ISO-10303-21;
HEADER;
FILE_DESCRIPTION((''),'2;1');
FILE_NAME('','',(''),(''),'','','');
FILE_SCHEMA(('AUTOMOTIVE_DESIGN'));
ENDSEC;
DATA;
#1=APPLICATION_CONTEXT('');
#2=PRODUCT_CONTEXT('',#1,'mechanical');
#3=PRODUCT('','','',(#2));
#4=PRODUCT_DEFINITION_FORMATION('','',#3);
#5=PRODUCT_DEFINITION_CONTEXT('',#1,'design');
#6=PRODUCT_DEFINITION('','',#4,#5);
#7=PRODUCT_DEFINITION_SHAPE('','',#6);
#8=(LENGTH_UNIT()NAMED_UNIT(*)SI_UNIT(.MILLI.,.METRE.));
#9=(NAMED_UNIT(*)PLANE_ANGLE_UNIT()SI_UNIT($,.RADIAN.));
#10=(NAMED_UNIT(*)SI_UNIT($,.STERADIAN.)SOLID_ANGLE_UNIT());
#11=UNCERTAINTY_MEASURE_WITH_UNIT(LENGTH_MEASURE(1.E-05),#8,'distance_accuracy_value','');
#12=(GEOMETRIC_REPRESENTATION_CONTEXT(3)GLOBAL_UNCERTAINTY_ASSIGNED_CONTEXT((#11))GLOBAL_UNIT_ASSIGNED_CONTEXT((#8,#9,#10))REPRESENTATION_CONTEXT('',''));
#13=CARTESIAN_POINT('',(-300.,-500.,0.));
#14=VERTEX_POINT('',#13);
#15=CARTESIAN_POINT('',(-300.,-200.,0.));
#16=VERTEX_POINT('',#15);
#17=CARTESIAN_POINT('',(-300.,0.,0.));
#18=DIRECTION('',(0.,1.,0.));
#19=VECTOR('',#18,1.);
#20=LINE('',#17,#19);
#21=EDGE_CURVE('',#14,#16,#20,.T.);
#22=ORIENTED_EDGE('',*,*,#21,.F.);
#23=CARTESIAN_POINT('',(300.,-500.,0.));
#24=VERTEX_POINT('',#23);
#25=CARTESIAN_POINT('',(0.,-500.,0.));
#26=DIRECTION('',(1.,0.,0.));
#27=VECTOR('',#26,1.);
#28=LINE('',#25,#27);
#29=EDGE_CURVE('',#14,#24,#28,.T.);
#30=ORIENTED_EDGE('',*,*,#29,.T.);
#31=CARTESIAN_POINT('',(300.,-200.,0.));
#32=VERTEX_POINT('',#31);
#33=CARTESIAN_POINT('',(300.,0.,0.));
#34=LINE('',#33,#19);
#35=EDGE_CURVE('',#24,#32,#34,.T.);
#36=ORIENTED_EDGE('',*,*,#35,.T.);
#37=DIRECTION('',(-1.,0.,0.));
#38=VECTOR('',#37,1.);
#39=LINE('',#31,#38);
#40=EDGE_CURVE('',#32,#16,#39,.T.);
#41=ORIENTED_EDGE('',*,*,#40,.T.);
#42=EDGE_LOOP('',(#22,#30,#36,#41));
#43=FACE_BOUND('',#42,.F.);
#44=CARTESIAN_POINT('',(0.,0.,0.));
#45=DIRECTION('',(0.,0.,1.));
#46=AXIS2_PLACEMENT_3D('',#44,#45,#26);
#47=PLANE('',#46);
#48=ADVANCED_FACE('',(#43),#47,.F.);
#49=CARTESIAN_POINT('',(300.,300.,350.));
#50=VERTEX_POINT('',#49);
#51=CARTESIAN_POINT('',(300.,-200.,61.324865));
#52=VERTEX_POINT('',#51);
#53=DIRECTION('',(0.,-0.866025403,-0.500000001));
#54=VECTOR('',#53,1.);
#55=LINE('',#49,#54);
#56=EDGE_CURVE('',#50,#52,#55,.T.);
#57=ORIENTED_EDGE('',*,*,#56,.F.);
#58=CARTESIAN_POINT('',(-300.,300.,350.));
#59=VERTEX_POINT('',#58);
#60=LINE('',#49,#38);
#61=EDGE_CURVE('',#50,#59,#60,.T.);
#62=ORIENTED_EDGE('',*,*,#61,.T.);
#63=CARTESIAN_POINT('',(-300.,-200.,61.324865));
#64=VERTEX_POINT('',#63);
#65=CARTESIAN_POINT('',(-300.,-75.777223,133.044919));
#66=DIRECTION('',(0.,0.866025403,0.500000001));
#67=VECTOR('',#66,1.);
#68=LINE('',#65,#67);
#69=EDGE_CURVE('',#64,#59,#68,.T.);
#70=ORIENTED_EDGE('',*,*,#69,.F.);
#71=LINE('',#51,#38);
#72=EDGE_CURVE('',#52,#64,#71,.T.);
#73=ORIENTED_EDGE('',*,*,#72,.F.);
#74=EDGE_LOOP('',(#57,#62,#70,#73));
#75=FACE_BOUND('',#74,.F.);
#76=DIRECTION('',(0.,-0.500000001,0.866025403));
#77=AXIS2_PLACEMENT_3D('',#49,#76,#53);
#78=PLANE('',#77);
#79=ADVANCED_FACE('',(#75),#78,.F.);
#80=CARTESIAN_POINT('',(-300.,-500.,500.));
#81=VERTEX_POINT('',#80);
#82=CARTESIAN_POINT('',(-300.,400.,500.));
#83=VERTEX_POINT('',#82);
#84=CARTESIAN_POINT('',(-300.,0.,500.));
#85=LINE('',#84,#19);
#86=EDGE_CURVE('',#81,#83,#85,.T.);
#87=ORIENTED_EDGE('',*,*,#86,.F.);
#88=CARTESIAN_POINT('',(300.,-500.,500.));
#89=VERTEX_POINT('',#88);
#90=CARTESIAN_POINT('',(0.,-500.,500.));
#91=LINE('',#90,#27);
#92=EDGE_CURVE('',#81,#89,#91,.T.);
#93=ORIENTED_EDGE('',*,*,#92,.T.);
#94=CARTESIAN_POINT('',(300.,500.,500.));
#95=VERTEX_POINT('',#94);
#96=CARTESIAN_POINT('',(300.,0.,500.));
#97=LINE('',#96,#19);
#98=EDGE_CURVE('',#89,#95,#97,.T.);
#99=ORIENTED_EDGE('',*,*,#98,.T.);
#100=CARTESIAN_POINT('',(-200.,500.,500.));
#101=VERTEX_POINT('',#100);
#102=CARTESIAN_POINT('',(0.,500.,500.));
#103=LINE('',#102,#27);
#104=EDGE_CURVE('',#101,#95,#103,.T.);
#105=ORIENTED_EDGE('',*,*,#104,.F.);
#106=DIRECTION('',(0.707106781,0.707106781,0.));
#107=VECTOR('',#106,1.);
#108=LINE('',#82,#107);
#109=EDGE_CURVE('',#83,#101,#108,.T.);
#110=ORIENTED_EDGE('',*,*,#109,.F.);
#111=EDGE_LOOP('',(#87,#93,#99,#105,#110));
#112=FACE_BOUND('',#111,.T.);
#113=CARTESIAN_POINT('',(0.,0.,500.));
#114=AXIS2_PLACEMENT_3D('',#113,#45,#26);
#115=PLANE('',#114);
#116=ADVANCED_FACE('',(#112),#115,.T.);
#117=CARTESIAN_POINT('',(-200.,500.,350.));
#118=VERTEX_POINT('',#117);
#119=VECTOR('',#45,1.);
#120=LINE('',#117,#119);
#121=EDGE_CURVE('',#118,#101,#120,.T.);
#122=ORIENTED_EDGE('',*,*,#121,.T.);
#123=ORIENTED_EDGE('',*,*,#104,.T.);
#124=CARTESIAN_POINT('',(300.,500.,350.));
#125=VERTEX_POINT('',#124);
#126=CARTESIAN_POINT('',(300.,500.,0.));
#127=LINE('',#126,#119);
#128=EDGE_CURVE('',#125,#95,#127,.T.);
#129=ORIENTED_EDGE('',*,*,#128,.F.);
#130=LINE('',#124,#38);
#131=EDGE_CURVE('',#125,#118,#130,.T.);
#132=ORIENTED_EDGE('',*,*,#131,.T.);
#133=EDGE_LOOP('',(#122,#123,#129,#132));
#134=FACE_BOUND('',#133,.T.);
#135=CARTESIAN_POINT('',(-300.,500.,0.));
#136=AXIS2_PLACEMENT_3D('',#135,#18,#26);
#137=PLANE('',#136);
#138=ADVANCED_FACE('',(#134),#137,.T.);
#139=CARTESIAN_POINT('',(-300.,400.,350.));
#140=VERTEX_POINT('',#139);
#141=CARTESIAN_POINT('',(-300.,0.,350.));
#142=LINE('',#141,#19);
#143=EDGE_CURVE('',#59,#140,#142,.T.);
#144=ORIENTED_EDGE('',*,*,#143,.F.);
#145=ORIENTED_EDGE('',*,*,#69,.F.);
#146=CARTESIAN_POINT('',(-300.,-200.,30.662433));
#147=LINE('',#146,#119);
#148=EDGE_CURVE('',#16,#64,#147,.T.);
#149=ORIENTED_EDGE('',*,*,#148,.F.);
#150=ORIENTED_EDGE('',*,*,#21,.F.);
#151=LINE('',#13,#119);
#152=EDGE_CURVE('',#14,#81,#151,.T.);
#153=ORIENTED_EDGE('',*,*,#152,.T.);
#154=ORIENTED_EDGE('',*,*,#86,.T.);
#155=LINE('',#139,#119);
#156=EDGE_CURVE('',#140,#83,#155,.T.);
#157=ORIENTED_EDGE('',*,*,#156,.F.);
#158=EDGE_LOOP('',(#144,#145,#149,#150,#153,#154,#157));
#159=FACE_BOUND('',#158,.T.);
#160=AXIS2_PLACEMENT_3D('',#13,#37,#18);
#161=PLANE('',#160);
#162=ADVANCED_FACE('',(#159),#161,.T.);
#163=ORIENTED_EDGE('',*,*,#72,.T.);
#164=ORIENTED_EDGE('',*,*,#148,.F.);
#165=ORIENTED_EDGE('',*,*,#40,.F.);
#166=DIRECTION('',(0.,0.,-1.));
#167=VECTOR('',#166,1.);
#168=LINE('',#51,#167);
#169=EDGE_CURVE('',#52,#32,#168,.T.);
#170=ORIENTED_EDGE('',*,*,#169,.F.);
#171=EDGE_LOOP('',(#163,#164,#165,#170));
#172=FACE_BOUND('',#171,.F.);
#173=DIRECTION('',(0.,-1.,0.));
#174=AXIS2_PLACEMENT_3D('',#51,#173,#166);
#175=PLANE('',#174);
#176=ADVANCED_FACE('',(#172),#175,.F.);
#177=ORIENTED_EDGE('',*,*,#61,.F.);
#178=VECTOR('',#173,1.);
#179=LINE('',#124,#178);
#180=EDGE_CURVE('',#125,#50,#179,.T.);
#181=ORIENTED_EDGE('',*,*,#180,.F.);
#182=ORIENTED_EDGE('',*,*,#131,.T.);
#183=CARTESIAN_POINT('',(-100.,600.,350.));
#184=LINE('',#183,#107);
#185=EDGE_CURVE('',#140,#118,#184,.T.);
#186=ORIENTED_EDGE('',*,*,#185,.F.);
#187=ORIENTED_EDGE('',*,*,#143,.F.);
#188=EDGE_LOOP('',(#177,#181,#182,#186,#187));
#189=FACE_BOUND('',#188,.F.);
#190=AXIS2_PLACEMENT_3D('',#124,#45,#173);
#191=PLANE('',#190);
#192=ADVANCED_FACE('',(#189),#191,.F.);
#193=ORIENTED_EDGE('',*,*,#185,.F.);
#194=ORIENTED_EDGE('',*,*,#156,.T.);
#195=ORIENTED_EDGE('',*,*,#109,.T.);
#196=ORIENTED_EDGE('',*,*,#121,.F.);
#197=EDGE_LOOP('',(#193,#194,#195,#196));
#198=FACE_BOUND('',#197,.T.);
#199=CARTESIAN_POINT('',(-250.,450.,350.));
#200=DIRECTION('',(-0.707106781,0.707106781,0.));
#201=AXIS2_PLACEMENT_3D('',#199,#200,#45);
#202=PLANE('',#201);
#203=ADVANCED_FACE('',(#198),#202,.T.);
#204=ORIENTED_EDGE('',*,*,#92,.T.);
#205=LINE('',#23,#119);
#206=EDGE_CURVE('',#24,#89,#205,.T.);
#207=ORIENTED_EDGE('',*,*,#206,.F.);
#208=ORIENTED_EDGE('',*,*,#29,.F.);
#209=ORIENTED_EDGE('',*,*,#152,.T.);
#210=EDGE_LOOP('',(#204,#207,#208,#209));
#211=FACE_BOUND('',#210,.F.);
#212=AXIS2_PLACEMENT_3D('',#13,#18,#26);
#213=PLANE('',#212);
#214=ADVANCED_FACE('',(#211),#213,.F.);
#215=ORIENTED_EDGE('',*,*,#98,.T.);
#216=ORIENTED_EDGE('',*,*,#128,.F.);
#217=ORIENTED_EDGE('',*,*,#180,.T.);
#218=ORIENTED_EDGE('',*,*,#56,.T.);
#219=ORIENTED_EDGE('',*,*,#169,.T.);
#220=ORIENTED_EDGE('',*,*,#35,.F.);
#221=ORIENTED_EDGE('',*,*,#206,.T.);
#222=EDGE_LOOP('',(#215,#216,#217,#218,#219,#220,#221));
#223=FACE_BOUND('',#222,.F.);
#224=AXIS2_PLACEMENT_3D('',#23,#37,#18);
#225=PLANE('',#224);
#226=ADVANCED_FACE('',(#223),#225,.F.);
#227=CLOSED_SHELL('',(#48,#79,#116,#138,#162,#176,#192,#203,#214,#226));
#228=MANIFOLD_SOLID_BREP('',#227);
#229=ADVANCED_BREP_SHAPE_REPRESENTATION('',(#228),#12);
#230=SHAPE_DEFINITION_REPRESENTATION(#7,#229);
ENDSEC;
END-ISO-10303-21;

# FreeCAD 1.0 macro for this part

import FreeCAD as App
import Part
import Sketcher
Q = App.Units.Quantity


def edges_at(feature, points):
    """Names of the edges that pass closest to the given points."""
    edges = feature.Shape.Edges
    near = lambda p: min(range(len(edges)), key=lambda i: edges[i].distToShape(Part.Vertex(*p))[0])
    return sorted({f"Edge{near(p) + 1}" for p in points})

doc = App.newDocument("Part")
body = doc.addObject("PartDesign::Body", "Body")

sketch1 = body.newObject("Sketcher::SketchObject", "Sketch")
sketch1.AttachmentSupport = (doc.getObject("XY_Plane"), [""])
sketch1.MapMode = "FlatFace"
sketch1.addGeometry([
    Part.LineSegment(App.Vector(-300, 500, 0), App.Vector(-300, -500, 0)),
    Part.LineSegment(App.Vector(-300, -500, 0), App.Vector(300, -500, 0)),
    Part.LineSegment(App.Vector(300, -500, 0), App.Vector(300, 500, 0)),
    Part.LineSegment(App.Vector(300, 500, 0), App.Vector(-300, 500, 0)),
], False)
sketch1.addConstraint([
    Sketcher.Constraint("Coincident", 0, 2, 1, 1),
    Sketcher.Constraint("Coincident", 1, 2, 2, 1),
    Sketcher.Constraint("Coincident", 2, 2, 3, 1),
    Sketcher.Constraint("Coincident", 3, 2, 0, 1),
    Sketcher.Constraint("Vertical", 0),
    Sketcher.Constraint("Horizontal", 1),
    Sketcher.Constraint("Vertical", 2),
    Sketcher.Constraint("Horizontal", 3),
    Sketcher.Constraint("Symmetric", 0, 2, 2, 2, -1, 1),
    Sketcher.Constraint("DistanceX", 1, 1, 1, 2, 600.0),
    Sketcher.Constraint("DistanceY", 0, 2, 0, 1, 1000.0),
])
pad1 = body.newObject("PartDesign::Pad", "Pad")
pad1.Profile = sketch1
pad1.Length = 500

sketch2 = body.newObject("Sketcher::SketchObject", "Sketch001")
sketch2.AttachmentSupport = (doc.getObject("YZ_Plane"), [""])
sketch2.MapMode = "FlatFace"
sketch2.AttachmentOffset = App.Placement(App.Vector(0, 0, 300), App.Rotation())
sketch2.addGeometry([
    Part.LineSegment(App.Vector(-200, 61, 0), App.Vector(-200, 0, 0)),
    Part.LineSegment(App.Vector(-200, 0, 0), App.Vector(500, 0, 0)),
    Part.LineSegment(App.Vector(500, 0, 0), App.Vector(500, 350, 0)),
    Part.LineSegment(App.Vector(500, 350, 0), App.Vector(300, 350, 0)),
    Part.LineSegment(App.Vector(300, 350, 0), App.Vector(-200, 61, 0)),
], False)
sketch2.addConstraint([
    Sketcher.Constraint("Coincident", 0, 2, 1, 1),
    Sketcher.Constraint("Coincident", 1, 2, 2, 1),
    Sketcher.Constraint("Coincident", 2, 2, 3, 1),
    Sketcher.Constraint("Coincident", 3, 2, 4, 1),
    Sketcher.Constraint("Coincident", 4, 2, 0, 1),
    Sketcher.Constraint("Vertical", 0),
    Sketcher.Constraint("Horizontal", 1),
    Sketcher.Constraint("Vertical", 2),
    Sketcher.Constraint("Horizontal", 3),
    Sketcher.Constraint("PointOnObject", 0, 2, -1),
    Sketcher.Constraint("DistanceX", 1, 1, 1, 2, 700.0),
    Sketcher.Constraint("DistanceX", 3, 2, 3, 1, 200.0),
    Sketcher.Constraint("DistanceY", 2, 1, 2, 2, 350.0),
    Sketcher.Constraint("Angle", 4, Q("-150 deg")),
    Sketcher.Constraint("DistanceX", 0, 2, -1, 1, 200.0),
])
pocket1 = body.newObject("PartDesign::Pocket", "Pocket")
pocket1.Profile = sketch2
pocket1.Type = "ThroughAll"
doc.recompute()

chamfer = body.newObject("PartDesign::Chamfer", "Chamfer")
chamfer.Base = (pocket1, edges_at(pocket1, [(-300, 500, 425)]))
chamfer.Size = 100

doc.recompute()
